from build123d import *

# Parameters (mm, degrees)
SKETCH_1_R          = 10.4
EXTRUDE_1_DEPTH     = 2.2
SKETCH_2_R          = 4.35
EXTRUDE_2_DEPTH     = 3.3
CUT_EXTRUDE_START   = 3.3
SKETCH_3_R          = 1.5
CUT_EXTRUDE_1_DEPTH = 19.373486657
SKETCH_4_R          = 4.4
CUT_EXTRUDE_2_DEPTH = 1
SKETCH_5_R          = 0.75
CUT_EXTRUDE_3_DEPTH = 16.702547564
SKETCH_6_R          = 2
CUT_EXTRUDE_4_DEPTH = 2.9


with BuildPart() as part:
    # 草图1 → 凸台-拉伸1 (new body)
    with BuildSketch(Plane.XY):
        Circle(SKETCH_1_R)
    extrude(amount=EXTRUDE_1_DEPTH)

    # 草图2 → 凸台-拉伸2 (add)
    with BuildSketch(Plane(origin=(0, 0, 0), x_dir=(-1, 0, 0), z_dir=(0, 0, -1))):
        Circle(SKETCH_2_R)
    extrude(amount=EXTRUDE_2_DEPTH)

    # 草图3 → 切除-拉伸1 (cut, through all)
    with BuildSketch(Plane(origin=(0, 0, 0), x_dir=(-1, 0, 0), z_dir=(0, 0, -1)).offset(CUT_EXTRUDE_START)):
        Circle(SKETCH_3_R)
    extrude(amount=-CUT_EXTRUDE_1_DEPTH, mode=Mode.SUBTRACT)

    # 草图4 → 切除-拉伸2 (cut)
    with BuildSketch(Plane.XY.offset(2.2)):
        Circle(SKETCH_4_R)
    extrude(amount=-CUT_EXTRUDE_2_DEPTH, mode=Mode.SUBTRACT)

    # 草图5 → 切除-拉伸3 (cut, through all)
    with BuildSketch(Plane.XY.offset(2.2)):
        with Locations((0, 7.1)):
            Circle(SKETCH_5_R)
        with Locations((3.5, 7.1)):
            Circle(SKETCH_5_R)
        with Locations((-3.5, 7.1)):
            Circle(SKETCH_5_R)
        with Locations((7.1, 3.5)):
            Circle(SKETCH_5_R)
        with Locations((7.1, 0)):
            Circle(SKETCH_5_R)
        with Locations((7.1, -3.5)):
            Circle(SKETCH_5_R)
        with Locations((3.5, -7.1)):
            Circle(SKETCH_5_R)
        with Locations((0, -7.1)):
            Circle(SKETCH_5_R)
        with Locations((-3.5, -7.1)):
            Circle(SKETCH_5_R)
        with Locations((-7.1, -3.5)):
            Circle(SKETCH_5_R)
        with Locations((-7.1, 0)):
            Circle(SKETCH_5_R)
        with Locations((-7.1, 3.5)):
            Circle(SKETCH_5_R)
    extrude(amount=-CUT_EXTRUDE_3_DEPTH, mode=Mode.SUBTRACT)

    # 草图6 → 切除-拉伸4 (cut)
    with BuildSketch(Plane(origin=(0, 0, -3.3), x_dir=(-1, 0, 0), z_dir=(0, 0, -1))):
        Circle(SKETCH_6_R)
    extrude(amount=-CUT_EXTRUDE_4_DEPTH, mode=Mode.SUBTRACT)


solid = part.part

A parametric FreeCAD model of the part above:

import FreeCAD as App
import Part
import Sketcher

V = App.Vector
Q = App.Units.Quantity

doc = App.newDocument("Part")
body = doc.addObject("PartDesign::Body", "Body")

# Sketch on XY plane
sketch1 = body.newObject("Sketcher::SketchObject", "Sketch")
sketch1.AttachmentSupport = (doc.getObject("XY_Plane"), [""])
sketch1.MapMode = "FlatFace"
sketch1.addGeometry(Part.Circle(V(0, 0, 0), V(0, 0, 1), 10), False)
sketch1.addConstraint(Sketcher.Constraint("Coincident", 0, 3, -1, 1))
sketch1.addConstraint(Sketcher.Constraint("Diameter", 0, Q("20.8 mm")))
pad1 = body.newObject("PartDesign::Pad", "Pad")
pad1.Profile = sketch1
pad1.Length = 2.2

# Sketch on XY plane
sketch2 = body.newObject("Sketcher::SketchObject", "Sketch001")
sketch2.AttachmentSupport = (doc.getObject("XY_Plane"), [""])
sketch2.MapMode = "FlatFace"
sketch2.addGeometry(Part.Circle(V(0, 0, 0), V(0, 0, 1), 4.3), False)
sketch2.addConstraint(Sketcher.Constraint("Coincident", 0, 3, -1, 1))
sketch2.addConstraint(Sketcher.Constraint("Diameter", 0, Q("8.7 mm")))
pad2 = body.newObject("PartDesign::Pad", "Pad001")
pad2.Profile = sketch2
pad2.Length = 3.3
pad2.Reversed = True

# Sketch on XY plane
sketch3 = body.newObject("Sketcher::SketchObject", "Sketch002")
sketch3.AttachmentSupport = (doc.getObject("XY_Plane"), [""])
sketch3.MapMode = "FlatFace"
sketch3.AttachmentOffset = App.Placement(V(0, 0, -3.3), App.Rotation())
sketch3.addGeometry(Part.Circle(V(0, 0, 0), V(0, 0, 1), 1.5), False)
sketch3.addConstraint(Sketcher.Constraint("Coincident", 0, 3, -1, 1))
sketch3.addConstraint(Sketcher.Constraint("Diameter", 0, Q("3 mm")))
pocket1 = body.newObject("PartDesign::Pocket", "Pocket")
pocket1.Profile = sketch3
pocket1.Type = "ThroughAll"
pocket1.Reversed = True

# Sketch on XY plane
sketch4 = body.newObject("Sketcher::SketchObject", "Sketch003")
sketch4.AttachmentSupport = (doc.getObject("XY_Plane"), [""])
sketch4.MapMode = "FlatFace"
sketch4.AttachmentOffset = App.Placement(V(0, 0, 2.2), App.Rotation())
sketch4.addGeometry(Part.Circle(V(0, 0, 0), V(0, 0, 1), 4.4), False)
sketch4.addConstraint(Sketcher.Constraint("Coincident", 0, 3, -1, 1))
sketch4.addConstraint(Sketcher.Constraint("Diameter", 0, Q("8.8 mm")))
pocket2 = body.newObject("PartDesign::Pocket", "Pocket001")
pocket2.Profile = sketch4
pocket2.Length = 1

# Sketch on XY plane
sketch5 = body.newObject("Sketcher::SketchObject", "Sketch004")
sketch5.AttachmentSupport = (doc.getObject("XY_Plane"), [""])
sketch5.MapMode = "FlatFace"
sketch5.AttachmentOffset = App.Placement(V(0, 0, 2.2), App.Rotation())
sketch5.addGeometry(Part.Circle(V(0, 7.1, 0), V(0, 0, 1), 0.8), False)
sketch5.addGeometry(Part.Circle(V(3.5, 7.1, 0), V(0, 0, 1), 0.8), False)
sketch5.addGeometry(Part.Circle(V(-3.5, 7.1, 0), V(0, 0, 1), 0.8), False)
sketch5.addGeometry(Part.Circle(V(7.1, 3.5, 0), V(0, 0, 1), 0.8), False)
sketch5.addGeometry(Part.Circle(V(7.1, 0, 0), V(0, 0, 1), 0.8), False)
sketch5.addGeometry(Part.Circle(V(7.1, -3.5, 0), V(0, 0, 1), 0.8), False)
sketch5.addGeometry(Part.Circle(V(3.5, -7.1, 0), V(0, 0, 1), 0.8), False)
sketch5.addGeometry(Part.Circle(V(0, -7.1, 0), V(0, 0, 1), 0.8), False)
sketch5.addGeometry(Part.Circle(V(-3.5, -7.1, 0), V(0, 0, 1), 0.8), False)
sketch5.addGeometry(Part.Circle(V(-7.1, -3.5, 0), V(0, 0, 1), 0.8), False)
sketch5.addGeometry(Part.Circle(V(-7.1, 0, 0), V(0, 0, 1), 0.8), False)
sketch5.addGeometry(Part.Circle(V(-7.1, 3.5, 0), V(0, 0, 1), 0.8), False)
sketch5.addConstraint(Sketcher.Constraint("Equal", 0, 1))
sketch5.addConstraint(Sketcher.Constraint("Equal", 1, 2))
sketch5.addConstraint(Sketcher.Constraint("Equal", 2, 3))
sketch5.addConstraint(Sketcher.Constraint("Equal", 3, 4))
sketch5.addConstraint(Sketcher.Constraint("Equal", 4, 5))
sketch5.addConstraint(Sketcher.Constraint("Equal", 5, 6))
sketch5.addConstraint(Sketcher.Constraint("Equal", 6, 7))
sketch5.addConstraint(Sketcher.Constraint("Equal", 7, 8))
sketch5.addConstraint(Sketcher.Constraint("Equal", 8, 9))
sketch5.addConstraint(Sketcher.Constraint("Equal", 9, 10))
sketch5.addConstraint(Sketcher.Constraint("Equal", 10, 11))
sketch5.addConstraint(Sketcher.Constraint("Symmetric", 2, 3, 6, 3, -1, 1))
sketch5.addConstraint(Sketcher.Constraint("Symmetric", 0, 3, 7, 3, -1, 1))
sketch5.addConstraint(Sketcher.Constraint("Symmetric", 1, 3, 8, 3, -1, 1))
sketch5.addConstraint(Sketcher.Constraint("Symmetric", 3, 3, 9, 3, -1, 1))
sketch5.addConstraint(Sketcher.Constraint("Symmetric", 4, 3, 10, 3, -1, 1))
sketch5.addConstraint(Sketcher.Constraint("Symmetric", 5, 3, 11, 3, -1, 1))
sketch5.addConstraint(Sketcher.Constraint("Symmetric", 1, 3, 2, 3, -2))
sketch5.addConstraint(Sketcher.Constraint("Symmetric", 5, 3, 9, 3, -2))
sketch5.addConstraint(Sketcher.Constraint("PointOnObject", 0, 3, -2))
sketch5.addConstraint(Sketcher.Constraint("PointOnObject", 4, 3, -1))
sketch5.addConstraint(Sketcher.Constraint("Horizontal", 0, 3, 1, 3))
sketch5.addConstraint(Sketcher.Constraint("Vertical", 3, 3, 4, 3))
sketch5.addConstraint(Sketcher.Constraint("Diameter", 0, Q("1.5 mm")))
sketch5.addConstraint(Sketcher.Constraint("DistanceX", 2, 3, 1, 3, Q("7 mm")))
sketch5.addConstraint(Sketcher.Constraint("DistanceY", 5, 3, 3, 3, Q("7 mm")))
sketch5.addConstraint(Sketcher.Constraint("DistanceY", -1, 1, 0, 3, Q("7.1 mm")))
sketch5.addConstraint(Sketcher.Constraint("DistanceX", -1, 1, 3, 3, Q("7.1 mm")))
pocket3 = body.newObject("PartDesign::Pocket", "Pocket002")
pocket3.Profile = sketch5
pocket3.Type = "ThroughAll"

# Sketch on XY plane
sketch6 = body.newObject("Sketcher::SketchObject", "Sketch005")
sketch6.AttachmentSupport = (doc.getObject("XY_Plane"), [""])
sketch6.MapMode = "FlatFace"
sketch6.AttachmentOffset = App.Placement(V(0, 0, -3.3), App.Rotation())
sketch6.addGeometry(Part.Circle(V(0, 0, 0), V(0, 0, 1), 2), False)
sketch6.addConstraint(Sketcher.Constraint("Coincident", 0, 3, -1, 1))
sketch6.addConstraint(Sketcher.Constraint("Diameter", 0, Q("4 mm")))
pocket4 = body.newObject("PartDesign::Pocket", "Pocket003")
pocket4.Profile = sketch6
pocket4.Length = 2.9
pocket4.Reversed = True

doc.recompute()
